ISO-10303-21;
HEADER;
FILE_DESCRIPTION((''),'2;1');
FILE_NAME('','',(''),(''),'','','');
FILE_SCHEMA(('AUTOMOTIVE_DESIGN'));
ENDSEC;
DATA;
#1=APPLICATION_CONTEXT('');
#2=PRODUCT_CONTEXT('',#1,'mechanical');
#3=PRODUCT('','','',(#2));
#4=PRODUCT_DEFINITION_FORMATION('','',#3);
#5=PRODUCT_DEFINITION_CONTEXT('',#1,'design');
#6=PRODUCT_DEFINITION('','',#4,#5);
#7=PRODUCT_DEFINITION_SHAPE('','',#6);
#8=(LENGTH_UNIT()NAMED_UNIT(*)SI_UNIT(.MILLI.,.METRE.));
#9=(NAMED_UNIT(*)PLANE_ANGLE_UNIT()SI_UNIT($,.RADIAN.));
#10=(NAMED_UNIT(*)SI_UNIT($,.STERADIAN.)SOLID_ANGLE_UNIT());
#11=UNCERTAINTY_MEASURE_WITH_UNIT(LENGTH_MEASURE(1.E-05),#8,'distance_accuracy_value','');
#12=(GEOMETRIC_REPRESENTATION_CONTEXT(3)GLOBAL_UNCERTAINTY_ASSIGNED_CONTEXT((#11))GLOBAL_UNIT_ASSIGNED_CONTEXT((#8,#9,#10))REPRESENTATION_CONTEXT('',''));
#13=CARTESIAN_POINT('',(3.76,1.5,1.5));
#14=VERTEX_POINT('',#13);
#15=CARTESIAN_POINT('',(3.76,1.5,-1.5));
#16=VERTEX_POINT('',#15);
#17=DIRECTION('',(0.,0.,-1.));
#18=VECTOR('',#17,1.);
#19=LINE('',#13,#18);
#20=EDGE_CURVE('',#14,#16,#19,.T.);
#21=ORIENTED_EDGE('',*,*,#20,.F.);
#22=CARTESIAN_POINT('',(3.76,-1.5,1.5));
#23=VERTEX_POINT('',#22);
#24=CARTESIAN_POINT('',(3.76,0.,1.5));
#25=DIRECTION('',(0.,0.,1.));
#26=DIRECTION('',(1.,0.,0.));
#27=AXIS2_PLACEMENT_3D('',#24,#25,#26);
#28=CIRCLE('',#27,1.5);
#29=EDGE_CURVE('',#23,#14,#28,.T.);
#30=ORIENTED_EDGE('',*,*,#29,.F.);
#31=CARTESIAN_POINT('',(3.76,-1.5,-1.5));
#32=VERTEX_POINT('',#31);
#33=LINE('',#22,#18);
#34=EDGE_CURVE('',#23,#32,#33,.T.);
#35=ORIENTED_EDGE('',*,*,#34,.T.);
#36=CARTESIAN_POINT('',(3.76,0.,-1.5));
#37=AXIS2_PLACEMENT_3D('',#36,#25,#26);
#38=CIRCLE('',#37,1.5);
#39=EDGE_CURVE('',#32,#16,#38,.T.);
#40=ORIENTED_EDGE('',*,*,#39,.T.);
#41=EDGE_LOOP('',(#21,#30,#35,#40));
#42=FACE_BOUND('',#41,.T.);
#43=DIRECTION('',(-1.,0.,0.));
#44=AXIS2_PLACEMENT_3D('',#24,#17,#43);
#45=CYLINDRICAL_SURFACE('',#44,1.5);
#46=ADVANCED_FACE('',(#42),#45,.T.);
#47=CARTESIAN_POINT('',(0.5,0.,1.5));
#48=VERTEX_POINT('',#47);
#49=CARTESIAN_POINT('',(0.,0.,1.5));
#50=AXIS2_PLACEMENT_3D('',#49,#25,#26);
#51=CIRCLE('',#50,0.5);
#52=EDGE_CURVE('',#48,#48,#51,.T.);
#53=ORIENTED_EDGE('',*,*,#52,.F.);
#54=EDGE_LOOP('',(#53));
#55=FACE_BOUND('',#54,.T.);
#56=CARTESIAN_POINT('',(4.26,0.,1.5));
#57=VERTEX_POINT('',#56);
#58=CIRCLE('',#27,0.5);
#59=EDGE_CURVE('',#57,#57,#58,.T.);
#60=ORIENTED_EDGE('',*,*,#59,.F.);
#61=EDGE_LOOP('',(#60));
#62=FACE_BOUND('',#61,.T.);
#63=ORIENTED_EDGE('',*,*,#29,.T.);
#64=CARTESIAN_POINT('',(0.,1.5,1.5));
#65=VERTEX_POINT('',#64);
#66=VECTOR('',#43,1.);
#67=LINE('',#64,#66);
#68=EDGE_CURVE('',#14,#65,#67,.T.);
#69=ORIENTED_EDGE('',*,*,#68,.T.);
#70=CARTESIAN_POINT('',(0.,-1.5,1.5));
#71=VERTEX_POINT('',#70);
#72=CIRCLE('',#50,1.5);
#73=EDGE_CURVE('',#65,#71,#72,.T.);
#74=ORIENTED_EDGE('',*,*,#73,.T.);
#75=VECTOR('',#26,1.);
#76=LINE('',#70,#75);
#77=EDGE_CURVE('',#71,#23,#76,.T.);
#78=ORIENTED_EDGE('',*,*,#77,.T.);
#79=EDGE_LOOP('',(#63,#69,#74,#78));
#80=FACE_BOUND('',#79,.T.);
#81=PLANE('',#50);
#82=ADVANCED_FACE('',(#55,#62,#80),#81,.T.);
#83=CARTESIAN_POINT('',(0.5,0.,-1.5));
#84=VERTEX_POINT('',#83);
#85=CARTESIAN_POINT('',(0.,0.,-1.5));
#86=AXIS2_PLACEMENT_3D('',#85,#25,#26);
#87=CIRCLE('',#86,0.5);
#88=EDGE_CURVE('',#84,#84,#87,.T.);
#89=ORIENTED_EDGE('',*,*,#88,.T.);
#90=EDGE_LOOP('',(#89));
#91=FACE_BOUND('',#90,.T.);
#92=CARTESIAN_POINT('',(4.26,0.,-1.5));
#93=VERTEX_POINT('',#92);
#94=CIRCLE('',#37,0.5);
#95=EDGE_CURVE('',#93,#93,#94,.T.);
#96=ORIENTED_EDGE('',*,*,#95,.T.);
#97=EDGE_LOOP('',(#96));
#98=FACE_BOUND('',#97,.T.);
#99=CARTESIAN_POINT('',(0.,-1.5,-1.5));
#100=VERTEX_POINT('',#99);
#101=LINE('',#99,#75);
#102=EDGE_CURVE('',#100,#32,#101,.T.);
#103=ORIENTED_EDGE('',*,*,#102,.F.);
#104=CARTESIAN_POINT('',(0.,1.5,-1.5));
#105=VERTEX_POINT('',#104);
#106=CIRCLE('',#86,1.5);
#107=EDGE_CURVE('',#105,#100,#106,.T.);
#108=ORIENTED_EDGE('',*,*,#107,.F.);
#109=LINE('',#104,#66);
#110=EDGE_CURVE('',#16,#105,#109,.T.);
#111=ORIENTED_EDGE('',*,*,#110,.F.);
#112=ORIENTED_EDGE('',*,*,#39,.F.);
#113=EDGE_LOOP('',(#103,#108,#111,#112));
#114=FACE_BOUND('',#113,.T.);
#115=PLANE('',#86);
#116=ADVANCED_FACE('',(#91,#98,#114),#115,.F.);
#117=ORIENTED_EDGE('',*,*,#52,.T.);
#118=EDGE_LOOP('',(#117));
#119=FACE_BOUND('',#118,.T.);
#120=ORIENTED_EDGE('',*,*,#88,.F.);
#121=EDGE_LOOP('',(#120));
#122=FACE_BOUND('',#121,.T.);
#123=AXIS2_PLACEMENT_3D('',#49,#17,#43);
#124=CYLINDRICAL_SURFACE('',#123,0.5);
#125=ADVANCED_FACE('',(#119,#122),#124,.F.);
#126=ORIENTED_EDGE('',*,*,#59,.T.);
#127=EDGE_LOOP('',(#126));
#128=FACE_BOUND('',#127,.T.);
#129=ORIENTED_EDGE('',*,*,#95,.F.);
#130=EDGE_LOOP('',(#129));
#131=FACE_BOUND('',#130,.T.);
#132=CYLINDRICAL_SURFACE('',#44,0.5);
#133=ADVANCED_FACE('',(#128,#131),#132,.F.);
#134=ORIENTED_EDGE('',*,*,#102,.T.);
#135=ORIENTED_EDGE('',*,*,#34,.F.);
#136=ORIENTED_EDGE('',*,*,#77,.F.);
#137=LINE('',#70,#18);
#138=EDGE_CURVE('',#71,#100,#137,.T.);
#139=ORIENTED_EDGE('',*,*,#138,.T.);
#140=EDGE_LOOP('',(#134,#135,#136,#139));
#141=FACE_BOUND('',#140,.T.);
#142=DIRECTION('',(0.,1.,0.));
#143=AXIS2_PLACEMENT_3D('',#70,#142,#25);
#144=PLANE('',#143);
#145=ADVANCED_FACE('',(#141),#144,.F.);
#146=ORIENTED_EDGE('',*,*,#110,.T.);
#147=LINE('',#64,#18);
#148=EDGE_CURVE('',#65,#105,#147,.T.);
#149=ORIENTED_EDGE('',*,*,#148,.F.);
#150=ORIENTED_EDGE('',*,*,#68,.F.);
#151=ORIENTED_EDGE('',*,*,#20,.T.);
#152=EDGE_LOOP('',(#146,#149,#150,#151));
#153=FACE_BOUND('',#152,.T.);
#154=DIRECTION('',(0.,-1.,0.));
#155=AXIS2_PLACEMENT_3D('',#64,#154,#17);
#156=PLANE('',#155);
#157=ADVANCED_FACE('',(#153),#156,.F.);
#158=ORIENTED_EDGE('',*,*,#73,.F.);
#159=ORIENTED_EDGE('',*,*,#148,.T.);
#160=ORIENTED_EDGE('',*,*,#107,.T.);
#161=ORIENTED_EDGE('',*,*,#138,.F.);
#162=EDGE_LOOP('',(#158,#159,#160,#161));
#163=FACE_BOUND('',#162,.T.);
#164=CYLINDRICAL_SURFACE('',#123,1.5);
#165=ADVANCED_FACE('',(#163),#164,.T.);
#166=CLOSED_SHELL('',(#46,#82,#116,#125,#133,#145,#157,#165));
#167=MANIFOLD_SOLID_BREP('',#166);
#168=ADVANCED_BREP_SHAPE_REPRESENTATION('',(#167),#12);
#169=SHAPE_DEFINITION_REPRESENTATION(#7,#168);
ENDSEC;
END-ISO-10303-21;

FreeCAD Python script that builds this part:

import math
import FreeCAD as App
import Part
import Sketcher
from FreeCAD import Vector

doc = App.newDocument("Part")
params = doc.addObject("Spreadsheet::Sheet", "Params")
for row, (alias, value) in enumerate([
    ("sketch1_diameter", "1 mm"),
    ("sketch1_radius", "1.5 mm"),
    ("sketch1_width", "3.76 mm"),
    ("pad1_length", "3 mm"),
], start=1):
    params.set(f"A{row}", alias)
    params.set(f"B{row}", "=" + value)
    params.setAlias(f"B{row}", alias)

body = doc.addObject("PartDesign::Body", "Body")

# Sketch on XY plane
sketch1 = body.newObject("Sketcher::SketchObject", "Sketch")
sketch1.AttachmentSupport = (doc.getObject("XY_Plane"), [""])
sketch1.MapMode = "FlatFace"
sketch1.addGeometry([
    Part.LineSegment(Vector(3.8, 1.5, 0), Vector(0, 1.5, 0)),  # 0
    Part.ArcOfCircle(Part.Circle(Vector(0, 0, 0), Vector(0, 0, 1), 1.5), math.radians(90), math.radians(270)),  # 1
    Part.LineSegment(Vector(0, -1.5, 0), Vector(3.8, -1.5, 0)),  # 2
    Part.ArcOfCircle(Part.Circle(Vector(3.8, 0, 0), Vector(0, 0, 1), 1.5), math.radians(-90), math.radians(90)),  # 3
    Part.Circle(Vector(3.8, 0, 0), Vector(0, 0, 1), 0.5),  # 4
    Part.Circle(Vector(0, 0, 0), Vector(0, 0, 1), 0.5),  # 5
], False)
sketch1.addConstraint([
    Sketcher.Constraint("Tangent", 0, 2, 1, 1),
    Sketcher.Constraint("Tangent", 1, 2, 2, 1),
    Sketcher.Constraint("Tangent", 2, 2, 3, 1),
    Sketcher.Constraint("Tangent", 3, 2, 0, 1),
    Sketcher.Constraint("Horizontal", 0),
    Sketcher.Constraint("Horizontal", 2),
    Sketcher.Constraint("Coincident", 1, 3, -1, 1),
    Sketcher.Constraint("Coincident", 5, 3, -1, 1),
    Sketcher.Constraint("Coincident", 4, 3, 3, 3),
    Sketcher.Constraint("Equal", 4, 5),
    Sketcher.Constraint("Diameter", 4, 1.0),
    Sketcher.Constraint("Radius", 1, 1.5),
    Sketcher.Constraint("DistanceX", 0, 2, 0, 1, 3.76),
])
sketch1.setExpression("Constraints[10]", "Params.sketch1_diameter")
sketch1.setExpression("Constraints[11]", "Params.sketch1_radius")
sketch1.setExpression("Constraints[12]", "Params.sketch1_width")
pad1 = body.newObject("PartDesign::Pad", "Pad")
pad1.Profile = sketch1
pad1.setExpression("Length", "Params.pad1_length")
pad1.Midplane = True

doc.recompute()
